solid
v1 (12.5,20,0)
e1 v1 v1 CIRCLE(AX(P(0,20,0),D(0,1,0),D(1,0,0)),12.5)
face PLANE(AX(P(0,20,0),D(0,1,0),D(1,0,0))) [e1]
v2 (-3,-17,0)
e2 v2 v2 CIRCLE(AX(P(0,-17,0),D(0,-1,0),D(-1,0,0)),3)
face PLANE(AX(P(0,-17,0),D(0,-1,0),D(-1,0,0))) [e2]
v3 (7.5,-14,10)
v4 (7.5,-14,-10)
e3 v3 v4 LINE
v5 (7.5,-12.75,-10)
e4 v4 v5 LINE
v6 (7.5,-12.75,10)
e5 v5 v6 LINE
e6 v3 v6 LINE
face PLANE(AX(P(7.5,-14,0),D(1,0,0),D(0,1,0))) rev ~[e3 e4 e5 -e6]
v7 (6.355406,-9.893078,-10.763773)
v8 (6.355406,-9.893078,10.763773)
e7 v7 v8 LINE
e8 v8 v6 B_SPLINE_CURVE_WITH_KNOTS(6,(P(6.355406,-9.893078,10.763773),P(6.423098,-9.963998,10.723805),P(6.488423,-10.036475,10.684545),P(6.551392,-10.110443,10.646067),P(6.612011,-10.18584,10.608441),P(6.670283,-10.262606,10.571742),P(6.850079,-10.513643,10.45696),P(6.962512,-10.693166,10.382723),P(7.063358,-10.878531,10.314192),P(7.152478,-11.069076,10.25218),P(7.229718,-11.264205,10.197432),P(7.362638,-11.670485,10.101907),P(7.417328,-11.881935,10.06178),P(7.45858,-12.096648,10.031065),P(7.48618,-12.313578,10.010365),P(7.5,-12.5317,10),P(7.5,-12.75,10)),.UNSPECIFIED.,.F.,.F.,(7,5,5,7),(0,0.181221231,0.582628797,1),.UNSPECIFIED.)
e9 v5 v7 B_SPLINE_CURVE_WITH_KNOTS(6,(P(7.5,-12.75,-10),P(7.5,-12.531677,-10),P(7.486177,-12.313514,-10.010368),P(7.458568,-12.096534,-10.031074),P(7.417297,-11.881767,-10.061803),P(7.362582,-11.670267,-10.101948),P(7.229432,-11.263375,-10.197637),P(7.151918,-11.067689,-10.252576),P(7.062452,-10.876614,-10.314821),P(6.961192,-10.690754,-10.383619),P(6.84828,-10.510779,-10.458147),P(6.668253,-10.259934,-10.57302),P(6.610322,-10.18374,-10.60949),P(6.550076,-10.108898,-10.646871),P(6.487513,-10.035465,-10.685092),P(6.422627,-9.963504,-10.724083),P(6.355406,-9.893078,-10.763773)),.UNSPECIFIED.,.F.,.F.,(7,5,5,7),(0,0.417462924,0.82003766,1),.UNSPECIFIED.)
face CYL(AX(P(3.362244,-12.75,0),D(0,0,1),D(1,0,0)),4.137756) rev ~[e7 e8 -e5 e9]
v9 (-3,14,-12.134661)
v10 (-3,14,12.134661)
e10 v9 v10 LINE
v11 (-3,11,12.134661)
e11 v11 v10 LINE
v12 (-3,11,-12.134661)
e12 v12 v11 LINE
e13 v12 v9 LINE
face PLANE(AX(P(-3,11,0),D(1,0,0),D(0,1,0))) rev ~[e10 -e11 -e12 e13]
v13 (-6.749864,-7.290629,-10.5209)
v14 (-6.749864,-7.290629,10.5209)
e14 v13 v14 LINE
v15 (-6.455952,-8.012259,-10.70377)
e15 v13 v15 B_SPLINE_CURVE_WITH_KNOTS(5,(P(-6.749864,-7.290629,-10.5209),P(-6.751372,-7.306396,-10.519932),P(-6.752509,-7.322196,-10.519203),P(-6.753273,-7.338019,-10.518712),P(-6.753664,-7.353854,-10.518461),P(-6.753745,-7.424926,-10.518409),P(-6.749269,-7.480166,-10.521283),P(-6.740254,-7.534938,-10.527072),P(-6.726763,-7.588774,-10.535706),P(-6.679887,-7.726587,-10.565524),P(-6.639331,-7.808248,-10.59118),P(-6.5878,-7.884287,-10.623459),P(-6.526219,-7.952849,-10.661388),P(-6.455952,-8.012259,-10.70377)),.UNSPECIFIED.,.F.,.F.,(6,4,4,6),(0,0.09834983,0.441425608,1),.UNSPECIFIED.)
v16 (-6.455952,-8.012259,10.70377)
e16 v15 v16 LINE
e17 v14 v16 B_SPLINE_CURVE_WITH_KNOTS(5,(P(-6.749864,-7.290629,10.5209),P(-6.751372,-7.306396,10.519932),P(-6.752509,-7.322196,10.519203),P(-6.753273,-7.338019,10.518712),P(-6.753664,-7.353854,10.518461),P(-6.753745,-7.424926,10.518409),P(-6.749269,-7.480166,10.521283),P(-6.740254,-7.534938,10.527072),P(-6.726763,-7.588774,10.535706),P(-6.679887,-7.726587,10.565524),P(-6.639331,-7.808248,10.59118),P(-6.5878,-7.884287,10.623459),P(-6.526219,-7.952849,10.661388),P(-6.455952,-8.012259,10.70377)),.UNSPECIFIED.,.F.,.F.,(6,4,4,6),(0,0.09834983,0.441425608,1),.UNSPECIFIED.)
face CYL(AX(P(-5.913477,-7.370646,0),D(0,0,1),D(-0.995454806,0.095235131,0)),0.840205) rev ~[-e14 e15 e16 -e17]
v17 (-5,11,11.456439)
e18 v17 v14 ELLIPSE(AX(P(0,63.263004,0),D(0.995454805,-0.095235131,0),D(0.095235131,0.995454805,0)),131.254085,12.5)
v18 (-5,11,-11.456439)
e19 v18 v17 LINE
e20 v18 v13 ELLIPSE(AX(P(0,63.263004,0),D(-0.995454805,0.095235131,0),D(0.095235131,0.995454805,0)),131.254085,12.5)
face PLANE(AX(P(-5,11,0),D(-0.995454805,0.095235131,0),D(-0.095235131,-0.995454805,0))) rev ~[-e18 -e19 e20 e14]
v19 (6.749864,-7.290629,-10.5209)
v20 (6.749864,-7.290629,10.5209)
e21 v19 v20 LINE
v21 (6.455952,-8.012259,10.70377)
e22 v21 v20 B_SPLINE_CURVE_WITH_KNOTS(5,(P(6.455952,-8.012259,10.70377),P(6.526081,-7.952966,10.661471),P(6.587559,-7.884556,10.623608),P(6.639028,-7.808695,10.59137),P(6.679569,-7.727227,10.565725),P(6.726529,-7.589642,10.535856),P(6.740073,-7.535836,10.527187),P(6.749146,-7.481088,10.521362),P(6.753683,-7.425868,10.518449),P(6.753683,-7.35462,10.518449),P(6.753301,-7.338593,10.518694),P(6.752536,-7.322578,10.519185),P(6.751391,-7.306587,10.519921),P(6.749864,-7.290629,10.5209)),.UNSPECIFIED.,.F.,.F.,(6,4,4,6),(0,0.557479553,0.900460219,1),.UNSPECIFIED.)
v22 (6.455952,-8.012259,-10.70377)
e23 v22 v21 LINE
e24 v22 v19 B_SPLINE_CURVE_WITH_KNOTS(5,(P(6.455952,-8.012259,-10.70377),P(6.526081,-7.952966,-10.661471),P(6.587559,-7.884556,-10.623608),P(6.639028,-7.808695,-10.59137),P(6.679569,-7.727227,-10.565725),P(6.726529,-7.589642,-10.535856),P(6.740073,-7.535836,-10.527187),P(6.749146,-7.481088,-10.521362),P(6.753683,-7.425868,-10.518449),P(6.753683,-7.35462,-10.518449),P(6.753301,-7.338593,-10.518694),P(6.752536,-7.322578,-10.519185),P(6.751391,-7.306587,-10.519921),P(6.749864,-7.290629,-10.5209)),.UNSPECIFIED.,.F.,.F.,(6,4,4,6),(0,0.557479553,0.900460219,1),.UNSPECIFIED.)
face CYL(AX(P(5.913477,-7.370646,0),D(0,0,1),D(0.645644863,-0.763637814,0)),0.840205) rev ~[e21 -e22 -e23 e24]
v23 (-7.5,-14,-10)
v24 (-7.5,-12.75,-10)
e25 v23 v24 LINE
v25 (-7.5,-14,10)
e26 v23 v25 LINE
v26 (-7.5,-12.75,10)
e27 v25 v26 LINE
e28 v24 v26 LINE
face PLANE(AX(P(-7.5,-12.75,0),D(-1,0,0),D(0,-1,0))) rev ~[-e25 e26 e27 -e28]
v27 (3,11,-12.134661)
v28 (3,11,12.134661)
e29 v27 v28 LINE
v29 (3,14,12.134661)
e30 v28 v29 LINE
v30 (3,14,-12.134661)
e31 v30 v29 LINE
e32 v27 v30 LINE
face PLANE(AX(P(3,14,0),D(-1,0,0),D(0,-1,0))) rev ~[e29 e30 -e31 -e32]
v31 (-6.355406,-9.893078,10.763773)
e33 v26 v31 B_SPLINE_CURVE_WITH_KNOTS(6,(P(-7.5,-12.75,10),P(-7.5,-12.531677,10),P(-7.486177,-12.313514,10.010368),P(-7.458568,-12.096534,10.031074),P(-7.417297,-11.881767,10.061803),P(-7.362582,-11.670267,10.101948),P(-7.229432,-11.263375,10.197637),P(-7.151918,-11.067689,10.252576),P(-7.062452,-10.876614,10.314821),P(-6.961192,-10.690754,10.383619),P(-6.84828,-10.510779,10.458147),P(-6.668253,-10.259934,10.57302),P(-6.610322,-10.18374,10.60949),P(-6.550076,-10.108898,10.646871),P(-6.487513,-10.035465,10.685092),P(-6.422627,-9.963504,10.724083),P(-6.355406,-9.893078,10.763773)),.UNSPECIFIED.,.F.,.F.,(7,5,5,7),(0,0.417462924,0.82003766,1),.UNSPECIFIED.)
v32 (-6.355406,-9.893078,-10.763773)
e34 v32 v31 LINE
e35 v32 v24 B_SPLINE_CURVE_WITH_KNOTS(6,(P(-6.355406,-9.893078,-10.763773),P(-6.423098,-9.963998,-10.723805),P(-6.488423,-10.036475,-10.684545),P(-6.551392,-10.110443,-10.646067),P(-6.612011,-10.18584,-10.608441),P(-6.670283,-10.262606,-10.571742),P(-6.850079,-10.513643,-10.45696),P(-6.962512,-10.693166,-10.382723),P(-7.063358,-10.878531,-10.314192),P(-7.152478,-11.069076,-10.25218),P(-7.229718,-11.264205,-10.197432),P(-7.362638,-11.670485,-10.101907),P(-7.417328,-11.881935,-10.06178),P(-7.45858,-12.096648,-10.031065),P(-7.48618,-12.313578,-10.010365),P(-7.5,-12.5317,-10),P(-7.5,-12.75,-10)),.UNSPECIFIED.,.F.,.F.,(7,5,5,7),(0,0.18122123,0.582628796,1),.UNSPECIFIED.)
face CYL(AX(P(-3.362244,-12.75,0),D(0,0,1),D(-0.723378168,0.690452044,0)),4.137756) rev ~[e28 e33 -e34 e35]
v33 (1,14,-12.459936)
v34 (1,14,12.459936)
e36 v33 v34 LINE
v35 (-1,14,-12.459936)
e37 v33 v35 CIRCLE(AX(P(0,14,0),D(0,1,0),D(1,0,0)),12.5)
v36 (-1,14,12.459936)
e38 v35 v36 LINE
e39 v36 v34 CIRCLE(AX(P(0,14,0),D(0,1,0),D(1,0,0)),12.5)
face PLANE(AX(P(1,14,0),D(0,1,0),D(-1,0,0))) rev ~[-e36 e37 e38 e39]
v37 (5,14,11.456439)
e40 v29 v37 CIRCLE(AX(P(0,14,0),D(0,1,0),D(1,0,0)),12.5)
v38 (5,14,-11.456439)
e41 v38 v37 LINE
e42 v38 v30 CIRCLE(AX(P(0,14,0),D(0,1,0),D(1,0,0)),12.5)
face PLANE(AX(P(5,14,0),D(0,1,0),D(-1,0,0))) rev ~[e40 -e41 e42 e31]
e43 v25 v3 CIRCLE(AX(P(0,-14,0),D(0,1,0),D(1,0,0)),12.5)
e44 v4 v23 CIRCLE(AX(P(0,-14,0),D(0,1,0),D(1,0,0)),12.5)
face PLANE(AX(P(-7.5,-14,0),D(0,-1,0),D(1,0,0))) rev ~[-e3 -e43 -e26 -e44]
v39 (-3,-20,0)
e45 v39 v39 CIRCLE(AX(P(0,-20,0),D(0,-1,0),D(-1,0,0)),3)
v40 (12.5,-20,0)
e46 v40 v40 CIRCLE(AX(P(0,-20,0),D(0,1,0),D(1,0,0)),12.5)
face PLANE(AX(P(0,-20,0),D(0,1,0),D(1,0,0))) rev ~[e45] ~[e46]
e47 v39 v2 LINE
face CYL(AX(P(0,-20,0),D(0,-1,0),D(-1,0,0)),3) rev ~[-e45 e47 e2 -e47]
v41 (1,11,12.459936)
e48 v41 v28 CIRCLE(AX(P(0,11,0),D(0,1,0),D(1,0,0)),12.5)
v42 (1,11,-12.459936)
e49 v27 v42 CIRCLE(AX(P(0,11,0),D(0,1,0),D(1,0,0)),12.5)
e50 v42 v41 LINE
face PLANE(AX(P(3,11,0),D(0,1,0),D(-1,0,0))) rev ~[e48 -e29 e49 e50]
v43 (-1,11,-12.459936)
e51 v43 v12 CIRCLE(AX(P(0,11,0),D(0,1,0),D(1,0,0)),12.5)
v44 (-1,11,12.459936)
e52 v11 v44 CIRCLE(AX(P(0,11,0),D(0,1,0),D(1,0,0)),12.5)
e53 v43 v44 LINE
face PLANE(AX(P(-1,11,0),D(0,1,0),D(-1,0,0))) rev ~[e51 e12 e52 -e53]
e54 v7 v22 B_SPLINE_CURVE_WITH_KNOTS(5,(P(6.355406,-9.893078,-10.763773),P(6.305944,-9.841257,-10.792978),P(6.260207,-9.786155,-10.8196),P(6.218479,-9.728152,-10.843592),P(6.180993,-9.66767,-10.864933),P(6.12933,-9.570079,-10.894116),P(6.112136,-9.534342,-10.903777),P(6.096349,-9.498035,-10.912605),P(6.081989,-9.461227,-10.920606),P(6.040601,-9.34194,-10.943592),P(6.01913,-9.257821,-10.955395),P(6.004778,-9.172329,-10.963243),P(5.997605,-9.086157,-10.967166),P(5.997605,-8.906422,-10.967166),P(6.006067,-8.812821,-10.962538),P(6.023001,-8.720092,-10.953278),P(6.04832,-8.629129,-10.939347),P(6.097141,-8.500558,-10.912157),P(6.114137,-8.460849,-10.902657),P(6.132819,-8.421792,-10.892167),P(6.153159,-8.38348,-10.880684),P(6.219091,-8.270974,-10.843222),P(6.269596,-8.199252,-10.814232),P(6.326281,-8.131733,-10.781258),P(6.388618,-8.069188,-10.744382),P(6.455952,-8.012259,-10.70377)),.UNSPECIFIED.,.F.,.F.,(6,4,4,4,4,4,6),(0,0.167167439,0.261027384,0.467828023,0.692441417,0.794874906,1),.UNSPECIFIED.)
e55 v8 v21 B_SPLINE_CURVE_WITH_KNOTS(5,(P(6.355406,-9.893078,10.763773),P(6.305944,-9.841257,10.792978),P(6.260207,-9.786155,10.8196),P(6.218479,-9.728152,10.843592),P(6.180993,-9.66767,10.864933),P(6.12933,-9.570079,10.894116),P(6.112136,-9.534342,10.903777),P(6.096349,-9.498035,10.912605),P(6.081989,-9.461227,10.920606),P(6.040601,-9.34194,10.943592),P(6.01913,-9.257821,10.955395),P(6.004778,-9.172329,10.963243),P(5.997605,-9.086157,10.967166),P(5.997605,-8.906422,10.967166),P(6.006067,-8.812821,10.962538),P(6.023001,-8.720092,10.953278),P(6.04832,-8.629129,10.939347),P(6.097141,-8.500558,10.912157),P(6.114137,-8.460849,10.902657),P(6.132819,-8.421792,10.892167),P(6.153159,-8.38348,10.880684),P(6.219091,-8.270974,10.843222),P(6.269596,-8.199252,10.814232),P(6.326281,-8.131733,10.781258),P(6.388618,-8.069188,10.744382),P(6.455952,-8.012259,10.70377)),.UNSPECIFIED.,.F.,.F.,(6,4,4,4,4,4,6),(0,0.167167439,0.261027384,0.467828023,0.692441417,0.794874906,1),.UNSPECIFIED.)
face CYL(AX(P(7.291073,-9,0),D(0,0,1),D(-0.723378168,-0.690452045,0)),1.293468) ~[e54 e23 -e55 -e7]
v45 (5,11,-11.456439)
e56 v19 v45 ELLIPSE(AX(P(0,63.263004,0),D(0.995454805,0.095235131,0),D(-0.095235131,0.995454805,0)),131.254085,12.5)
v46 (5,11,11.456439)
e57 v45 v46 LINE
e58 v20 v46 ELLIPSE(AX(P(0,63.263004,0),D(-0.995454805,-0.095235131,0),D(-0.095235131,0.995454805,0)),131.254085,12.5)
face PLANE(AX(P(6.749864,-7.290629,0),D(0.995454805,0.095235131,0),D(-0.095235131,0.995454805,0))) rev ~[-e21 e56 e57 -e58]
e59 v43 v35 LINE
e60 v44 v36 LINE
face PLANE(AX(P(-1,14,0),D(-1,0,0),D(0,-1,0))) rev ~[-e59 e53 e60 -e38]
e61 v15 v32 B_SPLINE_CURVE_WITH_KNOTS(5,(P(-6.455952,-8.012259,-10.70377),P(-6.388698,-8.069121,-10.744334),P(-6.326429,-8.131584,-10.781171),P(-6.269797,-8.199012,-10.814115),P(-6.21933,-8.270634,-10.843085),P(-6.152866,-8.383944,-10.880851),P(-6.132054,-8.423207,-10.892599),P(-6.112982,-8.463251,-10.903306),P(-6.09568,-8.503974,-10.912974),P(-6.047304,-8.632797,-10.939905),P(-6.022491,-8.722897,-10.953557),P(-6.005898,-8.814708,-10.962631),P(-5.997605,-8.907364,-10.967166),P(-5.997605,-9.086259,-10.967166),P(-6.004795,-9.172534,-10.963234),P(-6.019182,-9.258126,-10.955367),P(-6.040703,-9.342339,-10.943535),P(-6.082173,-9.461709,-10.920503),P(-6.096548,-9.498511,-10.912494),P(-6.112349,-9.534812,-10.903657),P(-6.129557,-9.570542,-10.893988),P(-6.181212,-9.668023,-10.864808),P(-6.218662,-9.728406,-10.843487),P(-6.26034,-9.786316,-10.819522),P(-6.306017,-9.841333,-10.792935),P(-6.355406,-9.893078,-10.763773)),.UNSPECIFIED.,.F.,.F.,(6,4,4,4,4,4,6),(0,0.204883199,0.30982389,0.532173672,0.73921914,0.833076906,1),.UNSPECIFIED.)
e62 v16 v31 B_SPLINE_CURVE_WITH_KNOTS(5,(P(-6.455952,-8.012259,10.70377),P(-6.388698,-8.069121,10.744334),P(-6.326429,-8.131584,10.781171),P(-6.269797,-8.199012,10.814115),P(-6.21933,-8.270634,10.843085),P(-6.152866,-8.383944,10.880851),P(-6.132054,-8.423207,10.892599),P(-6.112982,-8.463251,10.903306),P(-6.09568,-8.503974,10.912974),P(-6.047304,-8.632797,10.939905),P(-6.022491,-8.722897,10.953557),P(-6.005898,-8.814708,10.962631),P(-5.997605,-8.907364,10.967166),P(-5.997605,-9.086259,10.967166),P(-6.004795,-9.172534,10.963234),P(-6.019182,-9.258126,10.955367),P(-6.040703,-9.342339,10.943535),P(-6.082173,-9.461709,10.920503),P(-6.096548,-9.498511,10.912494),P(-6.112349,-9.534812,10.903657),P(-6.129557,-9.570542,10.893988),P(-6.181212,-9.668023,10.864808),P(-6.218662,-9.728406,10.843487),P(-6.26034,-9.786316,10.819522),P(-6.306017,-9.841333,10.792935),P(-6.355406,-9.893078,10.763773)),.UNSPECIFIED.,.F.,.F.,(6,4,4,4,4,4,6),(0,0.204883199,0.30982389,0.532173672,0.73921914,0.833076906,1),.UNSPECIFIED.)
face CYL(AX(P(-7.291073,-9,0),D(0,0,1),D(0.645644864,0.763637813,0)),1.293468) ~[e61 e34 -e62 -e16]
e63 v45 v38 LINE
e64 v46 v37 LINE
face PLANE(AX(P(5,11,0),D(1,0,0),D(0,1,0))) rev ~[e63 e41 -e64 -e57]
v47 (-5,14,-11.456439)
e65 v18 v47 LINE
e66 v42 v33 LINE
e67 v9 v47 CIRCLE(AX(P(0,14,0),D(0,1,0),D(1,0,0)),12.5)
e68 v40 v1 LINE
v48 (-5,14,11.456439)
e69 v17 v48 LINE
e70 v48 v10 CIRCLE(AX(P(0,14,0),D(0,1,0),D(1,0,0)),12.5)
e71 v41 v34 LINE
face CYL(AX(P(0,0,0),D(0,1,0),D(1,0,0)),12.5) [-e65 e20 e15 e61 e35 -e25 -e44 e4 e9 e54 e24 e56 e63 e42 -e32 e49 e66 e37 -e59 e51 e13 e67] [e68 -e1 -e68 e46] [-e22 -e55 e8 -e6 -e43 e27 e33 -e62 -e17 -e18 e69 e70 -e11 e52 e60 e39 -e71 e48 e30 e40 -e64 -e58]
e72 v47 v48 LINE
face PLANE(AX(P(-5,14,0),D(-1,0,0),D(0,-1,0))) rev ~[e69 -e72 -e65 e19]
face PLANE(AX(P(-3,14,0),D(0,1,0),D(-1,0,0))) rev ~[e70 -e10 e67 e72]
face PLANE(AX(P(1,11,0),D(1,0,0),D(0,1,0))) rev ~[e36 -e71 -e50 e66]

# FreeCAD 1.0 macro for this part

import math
import FreeCAD as App
import Part
import Sketcher

V = App.Vector
Q = App.Units.Quantity

doc = App.newDocument("Part")
params = doc.addObject("Spreadsheet::Sheet", "Params")
for row, (alias, value) in enumerate([
    ("sketch1_diameter", "25 mm"),
    ("pad1_length", "40 mm"),
    ("sketch2_width", "15 mm"),
    ("sketch2_width2", "2 mm"),
    ("sketch2_height", "3 mm"),
    ("sketch2_height2", "1.25 mm"),
    ("sketch3_diameter", "6 mm"),
    ("pocket2_length", "3 mm"),
], start=1):
    params.set(f"A{row}", alias)
    params.set(f"B{row}", "=" + value)
    params.setAlias(f"B{row}", alias)

body = doc.addObject("PartDesign::Body", "Body")

# Sketch on XZ plane
sketch1 = body.newObject("Sketcher::SketchObject", "Sketch")
sketch1.AttachmentSupport = (doc.getObject("XZ_Plane"), [""])
sketch1.MapMode = "FlatFace"
sketch1.addGeometry(Part.Circle(V(0, 0, 0), V(0, 0, 1), 12), False)
sketch1.addConstraint([
    Sketcher.Constraint("Coincident", 0, 3, -1, 1),
    Sketcher.Constraint("Diameter", 0, Q("25 mm")),
])
sketch1.setExpression("Constraints[1]", "Params.sketch1_diameter")
pad1 = body.newObject("PartDesign::Pad", "Pad")
pad1.Profile = sketch1
pad1.setExpression("Length", "Params.pad1_length")
pad1.Midplane = True

# Sketch on XY plane
sketch2 = body.newObject("Sketcher::SketchObject", "Sketch001")
sketch2.AttachmentSupport = (doc.getObject("XY_Plane"), [""])
sketch2.MapMode = "FlatFace"
sketch2.addGeometry([
    Part.LineSegment(V(-7.5, -14, 0), V(7.5, -14, 0)),  # 0
    Part.LineSegment(V(7.5, -14, 0), V(7.5, -12.8, 0)),  # 1
    Part.ArcOfCircle(Part.Circle(V(3.4, -12.8, 0), V(0, 0, 1), 4.1), math.radians(0), math.radians(44)),  # 2
    Part.ArcOfCircle(Part.Circle(V(7.3, -9, 0), V(0, 0, 1), 1.3), math.radians(130), math.radians(224)),  # 3
    Part.ArcOfCircle(Part.Circle(V(5.9, -7.4, 0), V(0, 0, 1), 0.8), math.radians(-50), math.radians(5)),  # 4
    Part.LineSegment(V(6.7, -7.3, 0), V(5, 11, 0)),  # 5
    Part.LineSegment(V(5, 11, 0), V(5, 14, 0)),  # 6
    Part.LineSegment(V(5, 14, 0), V(3, 14, 0)),  # 7
    Part.LineSegment(V(3, 14, 0), V(3, 11, 0)),  # 8
    Part.LineSegment(V(3, 11, 0), V(1, 11, 0)),  # 9
    Part.LineSegment(V(1, 11, 0), V(1, 14, 0)),  # 10
    Part.LineSegment(V(1, 14, 0), V(-1, 14, 0)),  # 11
    Part.LineSegment(V(-1, 14, 0), V(-1, 11, 0)),  # 12
    Part.LineSegment(V(-1, 11, 0), V(-3, 11, 0)),  # 13
    Part.LineSegment(V(-3, 11, 0), V(-3, 14, 0)),  # 14
    Part.LineSegment(V(-3, 14, 0), V(-5, 14, 0)),  # 15
    Part.LineSegment(V(-5, 14, 0), V(-5, 11, 0)),  # 16
    Part.LineSegment(V(-5, 11, 0), V(-6.7, -7.3, 0)),  # 17
    Part.ArcOfCircle(Part.Circle(V(-5.9, -7.4, 0), V(0, 0, 1), 0.8), math.radians(175), math.radians(230)),  # 18
    Part.ArcOfCircle(Part.Circle(V(-7.3, -9, 0), V(0, 0, 1), 1.3), math.radians(-44), math.radians(50)),  # 19
    Part.ArcOfCircle(Part.Circle(V(-3.4, -12.8, 0), V(0, 0, 1), 4.1), math.radians(136), math.radians(180)),  # 20
    Part.LineSegment(V(-7.5, -12.8, 0), V(-7.5, -14, 0)),  # 21
], False)
sketch2.addConstraint([
    Sketcher.Constraint("Coincident", 0, 2, 1, 1),
    Sketcher.Constraint("Tangent", 1, 2, 2, 1),
    Sketcher.Constraint("Tangent", 2, 2, 3, 2),
    Sketcher.Constraint("Tangent", 3, 1, 4, 1),
    Sketcher.Constraint("Tangent", 4, 2, 5, 1),
    Sketcher.Constraint("Coincident", 5, 2, 6, 1),
    Sketcher.Constraint("Coincident", 6, 2, 7, 1),
    Sketcher.Constraint("Coincident", 7, 2, 8, 1),
    Sketcher.Constraint("Coincident", 8, 2, 9, 1),
    Sketcher.Constraint("Coincident", 9, 2, 10, 1),
    Sketcher.Constraint("Coincident", 10, 2, 11, 1),
    Sketcher.Constraint("Coincident", 11, 2, 12, 1),
    Sketcher.Constraint("Coincident", 12, 2, 13, 1),
    Sketcher.Constraint("Coincident", 13, 2, 14, 1),
    Sketcher.Constraint("Coincident", 14, 2, 15, 1),
    Sketcher.Constraint("Coincident", 15, 2, 16, 1),
    Sketcher.Constraint("Coincident", 16, 2, 17, 1),
    Sketcher.Constraint("Tangent", 17, 2, 18, 1),
    Sketcher.Constraint("Tangent", 18, 2, 19, 2),
    Sketcher.Constraint("Tangent", 19, 1, 20, 1),
    Sketcher.Constraint("Tangent", 20, 2, 21, 1),
    Sketcher.Constraint("Coincident", 21, 2, 0, 1),
    Sketcher.Constraint("Horizontal", 0),
    Sketcher.Constraint("Vertical", 1),
    Sketcher.Constraint("Vertical", 6),
    Sketcher.Constraint("Horizontal", 7),
    Sketcher.Constraint("Vertical", 8),
    Sketcher.Constraint("Horizontal", 9),
    Sketcher.Constraint("Vertical", 10),
    Sketcher.Constraint("Horizontal", 11),
    Sketcher.Constraint("Vertical", 12),
    Sketcher.Constraint("Horizontal", 13),
    Sketcher.Constraint("Vertical", 14),
    Sketcher.Constraint("Horizontal", 15),
    Sketcher.Constraint("Vertical", 16),
    Sketcher.Constraint("Vertical", 21),
    Sketcher.Constraint("Equal", 4, 18),
    Sketcher.Constraint("Equal", 3, 19),
    Sketcher.Constraint("Equal", 2, 20),
    Sketcher.Constraint("Symmetric", 4, 3, 18, 3, -2),
    Sketcher.Constraint("Symmetric", 2, 3, 20, 3, -2),
    Sketcher.Constraint("Symmetric", 9, 2, 12, 2, -2),
    Sketcher.Constraint("Symmetric", 7, 2, 14, 2, -2),
    Sketcher.Constraint("Symmetric", 5, 2, 16, 2, -2),
    Sketcher.Constraint("Horizontal", 5, 2, 8, 2),
    Sketcher.Constraint("Horizontal", 7, 2, 10, 2),
    Sketcher.Constraint("Equal", 7, 9),
    Sketcher.Constraint("Equal", 9, 11),
    Sketcher.Constraint("DistanceX", 0, 1, 0, 2, Q("15 mm")),
    Sketcher.Constraint("DistanceX", 7, 2, 7, 1, Q("2 mm")),
    Sketcher.Constraint("DistanceY", 6, 1, 6, 2, Q("3 mm")),
    Sketcher.Constraint("DistanceY", 3, 3, -1, 1, Q("9 mm")),
    Sketcher.Constraint("DistanceY", 0, 2, -1, 1, Q("14 mm")),
    Sketcher.Constraint("DistanceY", -1, 1, 5, 2, Q("11 mm")),
    Sketcher.Constraint("DistanceY", 1, 1, 1, 2, Q("1.25 mm")),
    Sketcher.Constraint("Radius", 2, Q("4.137756 mm")),
    Sketcher.Constraint("Radius", 3, Q("1.293468 mm")),
    Sketcher.Constraint("Radius", 4, Q("0.840205 mm")),
    Sketcher.Constraint("DistanceX", -1, 1, 3, 1, Q("6.455952 mm")),
])
sketch2.setExpression("Constraints[48]", "Params.sketch2_width")
sketch2.setExpression("Constraints[49]", "Params.sketch2_width2")
sketch2.setExpression("Constraints[50]", "Params.sketch2_height")
sketch2.setExpression("Constraints[54]", "Params.sketch2_height2")
pocket1 = body.newObject("PartDesign::Pocket", "Pocket")
pocket1.Profile = sketch2
pocket1.Type = "ThroughAll"
pocket1.Midplane = True

# Sketch on XZ plane
sketch3 = body.newObject("Sketcher::SketchObject", "Sketch002")
sketch3.AttachmentSupport = (doc.getObject("XZ_Plane"), [""])
sketch3.MapMode = "FlatFace"
sketch3.AttachmentOffset = App.Placement(V(0, 0, 20), App.Rotation())
sketch3.addGeometry(Part.Circle(V(0, 0, 0), V(0, 0, 1), 3), False)
sketch3.addConstraint([
    Sketcher.Constraint("Coincident", 0, 3, -1, 1),
    Sketcher.Constraint("Diameter", 0, Q("6 mm")),
])
sketch3.setExpression("Constraints[1]", "Params.sketch3_diameter")
pocket2 = body.newObject("PartDesign::Pocket", "Pocket001")
pocket2.Profile = sketch3
pocket2.setExpression("Length", "Params.pocket2_length")

doc.recompute()
